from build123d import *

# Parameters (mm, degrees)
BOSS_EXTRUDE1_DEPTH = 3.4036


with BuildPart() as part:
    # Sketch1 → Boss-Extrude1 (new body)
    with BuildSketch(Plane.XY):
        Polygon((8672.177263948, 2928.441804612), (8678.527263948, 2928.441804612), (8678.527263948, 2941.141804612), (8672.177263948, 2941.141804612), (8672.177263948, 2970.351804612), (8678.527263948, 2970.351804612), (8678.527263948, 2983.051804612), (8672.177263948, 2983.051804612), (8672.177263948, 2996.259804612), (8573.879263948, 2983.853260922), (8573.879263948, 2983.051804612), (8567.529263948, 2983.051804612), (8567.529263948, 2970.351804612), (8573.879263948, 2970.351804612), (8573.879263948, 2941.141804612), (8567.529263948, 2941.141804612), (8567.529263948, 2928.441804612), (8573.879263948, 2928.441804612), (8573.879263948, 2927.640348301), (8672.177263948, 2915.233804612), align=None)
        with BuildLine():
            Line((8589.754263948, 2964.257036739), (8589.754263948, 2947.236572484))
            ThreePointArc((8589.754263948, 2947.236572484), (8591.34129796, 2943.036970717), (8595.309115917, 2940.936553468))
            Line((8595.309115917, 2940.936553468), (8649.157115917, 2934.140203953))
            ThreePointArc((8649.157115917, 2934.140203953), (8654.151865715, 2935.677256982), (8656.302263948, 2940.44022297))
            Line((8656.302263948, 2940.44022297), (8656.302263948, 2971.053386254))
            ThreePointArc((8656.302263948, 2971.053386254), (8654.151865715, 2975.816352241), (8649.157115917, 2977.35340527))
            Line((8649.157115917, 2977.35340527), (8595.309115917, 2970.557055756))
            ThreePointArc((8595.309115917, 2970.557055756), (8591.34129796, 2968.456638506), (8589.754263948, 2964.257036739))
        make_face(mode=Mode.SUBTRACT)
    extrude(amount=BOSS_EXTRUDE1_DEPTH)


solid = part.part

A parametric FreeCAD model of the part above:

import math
import FreeCAD as App
import Part
import Sketcher
from FreeCAD import Vector
Q = App.Units.Quantity

doc = App.newDocument("Part")
params = doc.addObject("Spreadsheet::Sheet", "Params")
for row, (alias, value) in enumerate([
    ("sketch1_radius", "0.25 in"),
    ("sketch1_height", "0.5 in"),
    ("sketch1_width", "0.25 in"),
    ("sketch1_height2", "1.15 in"),
    ("sketch1_height3", "0.52 in"),
    ("pad1_length", "0.134 in"),
], start=1):
    params.set(f"A{row}", alias)
    params.set(f"B{row}", "=" + value)
    params.setAlias(f"B{row}", alias)

body = doc.addObject("PartDesign::Body", "Body")

# Sketch on XY plane
sketch1 = body.newObject("Sketcher::SketchObject", "Sketch")
sketch1.AttachmentSupport = (doc.getObject("XY_Plane"), [""])
sketch1.MapMode = "FlatFace"
sketch1.addGeometry([
    Part.LineSegment(Vector(8672.177264, 2928.441805, 0), Vector(8678.527264, 2928.441805, 0)),  # 0
    Part.LineSegment(Vector(8678.527264, 2928.441805, 0), Vector(8678.527264, 2941.141805, 0)),  # 1
    Part.LineSegment(Vector(8678.527264, 2941.141805, 0), Vector(8672.177264, 2941.141805, 0)),  # 2
    Part.LineSegment(Vector(8672.177264, 2941.141805, 0), Vector(8672.177264, 2970.351805, 0)),  # 3
    Part.LineSegment(Vector(8672.177264, 2970.351805, 0), Vector(8678.527264, 2970.351805, 0)),  # 4
    Part.LineSegment(Vector(8678.527264, 2970.351805, 0), Vector(8678.527264, 2983.051805, 0)),  # 5
    Part.LineSegment(Vector(8678.527264, 2983.051805, 0), Vector(8672.177264, 2983.051805, 0)),  # 6
    Part.LineSegment(Vector(8672.177264, 2983.051805, 0), Vector(8672.177264, 2996.259805, 0)),  # 7
    Part.LineSegment(Vector(8672.177264, 2996.259805, 0), Vector(8573.879264, 2983.853261, 0)),  # 8
    Part.LineSegment(Vector(8573.879264, 2983.853261, 0), Vector(8573.879264, 2983.051805, 0)),  # 9
    Part.LineSegment(Vector(8573.879264, 2983.051805, 0), Vector(8567.529264, 2983.051805, 0)),  # 10
    Part.LineSegment(Vector(8567.529264, 2983.051805, 0), Vector(8567.529264, 2970.351805, 0)),  # 11
    Part.LineSegment(Vector(8567.529264, 2970.351805, 0), Vector(8573.879264, 2970.351805, 0)),  # 12
    Part.LineSegment(Vector(8573.879264, 2970.351805, 0), Vector(8573.879264, 2941.141805, 0)),  # 13
    Part.LineSegment(Vector(8573.879264, 2941.141805, 0), Vector(8567.529264, 2941.141805, 0)),  # 14
    Part.LineSegment(Vector(8567.529264, 2941.141805, 0), Vector(8567.529264, 2928.441805, 0)),  # 15
    Part.LineSegment(Vector(8567.529264, 2928.441805, 0), Vector(8573.879264, 2928.441805, 0)),  # 16
    Part.LineSegment(Vector(8573.879264, 2928.441805, 0), Vector(8573.879264, 2927.640348, 0)),  # 17
    Part.LineSegment(Vector(8573.879264, 2927.640348, 0), Vector(8672.177264, 2915.233805, 0)),  # 18
    Part.LineSegment(Vector(8672.177264, 2915.233805, 0), Vector(8672.177264, 2928.441805, 0)),  # 19
    Part.LineSegment(Vector(8589.754264, 2947.236572, 0), Vector(8589.754264, 2964.257037, 0)),  # 20
    Part.ArcOfCircle(Part.Circle(Vector(8596.104264, 2964.257037, 0), Vector(0, 0, 1), 6.35), math.radians(97.19347), math.radians(180)),  # 21
    Part.LineSegment(Vector(8595.309116, 2970.557056, 0), Vector(8649.157116, 2977.353405, 0)),  # 22
    Part.ArcOfCircle(Part.Circle(Vector(8649.952264, 2971.053386, 0), Vector(0, 0, 1), 6.35), math.radians(0), math.radians(97.19347)),  # 23
    Part.LineSegment(Vector(8656.302264, 2971.053386, 0), Vector(8656.302264, 2940.440223, 0)),  # 24
    Part.ArcOfCircle(Part.Circle(Vector(8649.952264, 2940.440223, 0), Vector(0, 0, 1), 6.35), math.radians(-97.19347), math.radians(0)),  # 25
    Part.LineSegment(Vector(8649.157116, 2934.140204, 0), Vector(8595.309116, 2940.936553, 0)),  # 26
    Part.ArcOfCircle(Part.Circle(Vector(8596.104264, 2947.236572, 0), Vector(0, 0, 1), 6.35), math.radians(180), math.radians(262.80653)),  # 27
], False)
sketch1.addConstraint([
    Sketcher.Constraint("Coincident", 0, 2, 1, 1),
    Sketcher.Constraint("Coincident", 1, 2, 2, 1),
    Sketcher.Constraint("Coincident", 2, 2, 3, 1),
    Sketcher.Constraint("Coincident", 3, 2, 4, 1),
    Sketcher.Constraint("Coincident", 4, 2, 5, 1),
    Sketcher.Constraint("Coincident", 5, 2, 6, 1),
    Sketcher.Constraint("Coincident", 6, 2, 7, 1),
    Sketcher.Constraint("Coincident", 7, 2, 8, 1),
    Sketcher.Constraint("Coincident", 8, 2, 9, 1),
    Sketcher.Constraint("Coincident", 9, 2, 10, 1),
    Sketcher.Constraint("Coincident", 10, 2, 11, 1),
    Sketcher.Constraint("Coincident", 11, 2, 12, 1),
    Sketcher.Constraint("Coincident", 12, 2, 13, 1),
    Sketcher.Constraint("Coincident", 13, 2, 14, 1),
    Sketcher.Constraint("Coincident", 14, 2, 15, 1),
    Sketcher.Constraint("Coincident", 15, 2, 16, 1),
    Sketcher.Constraint("Coincident", 16, 2, 17, 1),
    Sketcher.Constraint("Coincident", 17, 2, 18, 1),
    Sketcher.Constraint("Coincident", 18, 2, 19, 1),
    Sketcher.Constraint("Coincident", 19, 2, 0, 1),
    Sketcher.Constraint("Tangent", 20, 2, 21, 2),
    Sketcher.Constraint("Tangent", 21, 1, 22, 1),
    Sketcher.Constraint("Tangent", 22, 2, 23, 2),
    Sketcher.Constraint("Tangent", 23, 1, 24, 1),
    Sketcher.Constraint("Tangent", 24, 2, 25, 2),
    Sketcher.Constraint("Tangent", 25, 1, 26, 1),
    Sketcher.Constraint("Tangent", 26, 2, 27, 2),
    Sketcher.Constraint("Tangent", 27, 1, 20, 1),
    Sketcher.Constraint("Horizontal", 0),
    Sketcher.Constraint("Vertical", 1),
    Sketcher.Constraint("Horizontal", 2),
    Sketcher.Constraint("Vertical", 3),
    Sketcher.Constraint("Horizontal", 4),
    Sketcher.Constraint("Vertical", 5),
    Sketcher.Constraint("Horizontal", 6),
    Sketcher.Constraint("Vertical", 7),
    Sketcher.Constraint("Vertical", 9),
    Sketcher.Constraint("Horizontal", 10),
    Sketcher.Constraint("Vertical", 11),
    Sketcher.Constraint("Horizontal", 12),
    Sketcher.Constraint("Vertical", 13),
    Sketcher.Constraint("Horizontal", 14),
    Sketcher.Constraint("Vertical", 15),
    Sketcher.Constraint("Horizontal", 16),
    Sketcher.Constraint("Vertical", 17),
    Sketcher.Constraint("Vertical", 19),
    Sketcher.Constraint("Vertical", 20),
    Sketcher.Constraint("Vertical", 24),
    Sketcher.Constraint("Equal", 21, 23),
    Sketcher.Constraint("Equal", 23, 25),
    Sketcher.Constraint("Equal", 25, 27),
    Sketcher.Constraint("Parallel", 8, 22),
    Sketcher.Constraint("Parallel", 18, 26),
    Sketcher.Constraint("Horizontal", 6, 2, 9, 2),
    Sketcher.Constraint("Horizontal", 4, 2, 11, 2),
    Sketcher.Constraint("Horizontal", 2, 2, 13, 2),
    Sketcher.Constraint("Horizontal", 0, 2, 15, 2),
    Sketcher.Constraint("Vertical", 1, 2, 4, 2),
    Sketcher.Constraint("Vertical", 3, 2, 6, 2),
    Sketcher.Constraint("Vertical", 9, 2, 12, 2),
    Sketcher.Constraint("Vertical", 11, 2, 14, 2),
    Sketcher.Constraint("Vertical", 13, 2, 16, 2),
    Sketcher.Constraint("Vertical", 7, 2, 18, 2),
    Sketcher.Constraint("Vertical", 22, 2, 25, 1),
    Sketcher.Constraint("Equal", 6, 10),
    Sketcher.Constraint("Equal", 1, 5),
    Sketcher.Constraint("Equal", 9, 17),
    Sketcher.Constraint("Radius", 21, Q("0.25 in")),
    Sketcher.Constraint("DistanceY", 1, 1, 1, 2, Q("0.5 in")),
    Sketcher.Constraint("DistanceX", 0, 1, 0, 2, Q("0.25 in")),
    Sketcher.Constraint("DistanceY", 3, 1, 3, 2, Q("1.15 in")),
    Sketcher.Constraint("DistanceY", 7, 1, 7, 2, Q("0.52 in")),
    Sketcher.Constraint("DistanceX", 21, 3, 23, 3, Q("2.12 in")),
    Sketcher.Constraint("DistanceX", 8, 2, 6, 2, Q("3.87 in")),
    Sketcher.Constraint("DistanceX", 25, 3, 0, 2, Q("1.125 in")),
    Sketcher.Constraint("Distance", 22, 54.275201),
    Sketcher.Constraint("DistanceY", 22, 2, 6, 2, 5.698399),
    Sketcher.Constraint("DistanceY", 19, 2, 25, 1, 5.698399),
    Sketcher.Constraint("DistanceY", -1, 1, 8, 2, 2983.853261),
    Sketcher.Constraint("DistanceX", -1, 1, 21, 3, 8596.104264),
])
sketch1.setExpression("Constraints[67]", "Params.sketch1_radius")
sketch1.setExpression("Constraints[68]", "Params.sketch1_height")
sketch1.setExpression("Constraints[69]", "Params.sketch1_width")
sketch1.setExpression("Constraints[70]", "Params.sketch1_height2")
sketch1.setExpression("Constraints[71]", "Params.sketch1_height3")
pad1 = body.newObject("PartDesign::Pad", "Pad")
pad1.Profile = sketch1
pad1.setExpression("Length", "Params.pad1_length")

doc.recompute()
